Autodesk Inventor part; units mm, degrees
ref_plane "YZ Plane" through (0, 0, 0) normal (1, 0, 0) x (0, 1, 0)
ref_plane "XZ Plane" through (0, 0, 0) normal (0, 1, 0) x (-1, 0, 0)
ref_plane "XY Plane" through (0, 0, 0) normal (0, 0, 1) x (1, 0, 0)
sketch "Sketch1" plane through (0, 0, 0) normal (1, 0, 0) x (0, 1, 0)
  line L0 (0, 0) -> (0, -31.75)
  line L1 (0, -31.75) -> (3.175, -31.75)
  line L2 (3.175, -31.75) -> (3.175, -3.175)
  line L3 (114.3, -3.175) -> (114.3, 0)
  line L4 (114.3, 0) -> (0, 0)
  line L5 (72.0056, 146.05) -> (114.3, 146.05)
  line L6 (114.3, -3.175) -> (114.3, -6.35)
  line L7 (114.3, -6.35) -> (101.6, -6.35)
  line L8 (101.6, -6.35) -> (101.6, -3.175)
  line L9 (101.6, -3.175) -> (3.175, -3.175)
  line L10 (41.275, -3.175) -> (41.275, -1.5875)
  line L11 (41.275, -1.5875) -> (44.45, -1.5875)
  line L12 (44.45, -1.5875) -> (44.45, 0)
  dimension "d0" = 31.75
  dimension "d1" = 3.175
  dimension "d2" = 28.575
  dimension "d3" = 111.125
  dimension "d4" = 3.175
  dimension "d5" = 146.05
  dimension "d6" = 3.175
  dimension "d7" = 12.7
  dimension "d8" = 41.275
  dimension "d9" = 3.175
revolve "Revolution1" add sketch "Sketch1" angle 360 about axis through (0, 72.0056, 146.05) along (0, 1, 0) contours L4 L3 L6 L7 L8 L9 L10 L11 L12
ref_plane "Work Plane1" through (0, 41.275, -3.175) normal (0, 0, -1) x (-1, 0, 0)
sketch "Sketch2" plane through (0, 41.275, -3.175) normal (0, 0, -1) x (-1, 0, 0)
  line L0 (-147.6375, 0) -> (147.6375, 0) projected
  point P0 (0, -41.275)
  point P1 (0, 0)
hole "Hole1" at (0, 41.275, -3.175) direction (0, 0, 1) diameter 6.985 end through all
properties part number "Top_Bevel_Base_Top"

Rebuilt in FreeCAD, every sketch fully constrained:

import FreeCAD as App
import Part
import Sketcher

V = App.Vector
Q = App.Units.Quantity


def add_polygon(sketch, points):
    """Adds a closed chain of lines whose ends are joined by coincident constraints."""
    first, n = sketch.GeometryCount, len(points)
    for a, b in zip(points, points[1:] + points[:1]):
        sketch.addGeometry(Part.LineSegment(App.Vector(*a, 0), App.Vector(*b, 0)), False)
    for i in range(n):
        sketch.addConstraint(Sketcher.Constraint("Coincident", first + i, 2, first + (i + 1) % n, 1))

doc = App.newDocument("Part")
body = doc.addObject("PartDesign::Body", "Body")

sketch1 = doc.addObject("Sketcher::SketchObject", "Sketch")
body.addObject(sketch1)
sketch1.AttachmentSupport = (doc.YZ_Plane, [""])
sketch1.MapMode = "FlatFace"
add_polygon(sketch1, [(114.3, 0), (44.5, 0), (44.5, -1.6), (41.3, -1.6), (41.3, -3.2), (101.6, -3.2), (101.6, -6.3), (114.3, -6.3)])
sketch1.addGeometry(Part.LineSegment(V(41.3, 146.1, 0), V(114.3, 146.1, 0)), True)
sketch1.addConstraint(Sketcher.Constraint("Horizontal", 0))
sketch1.addConstraint(Sketcher.Constraint("Vertical", 1))
sketch1.addConstraint(Sketcher.Constraint("Horizontal", 2))
sketch1.addConstraint(Sketcher.Constraint("Vertical", 3))
sketch1.addConstraint(Sketcher.Constraint("Horizontal", 4))
sketch1.addConstraint(Sketcher.Constraint("Vertical", 5))
sketch1.addConstraint(Sketcher.Constraint("Horizontal", 6))
sketch1.addConstraint(Sketcher.Constraint("Vertical", 7))
sketch1.addConstraint(Sketcher.Constraint("Horizontal", 8))
sketch1.addConstraint(Sketcher.Constraint("PointOnObject", 0, 2, -1))
sketch1.addConstraint(Sketcher.Constraint("Vertical", 3, 2, 8, 1))
sketch1.addConstraint(Sketcher.Constraint("Vertical", 7, 2, 8, 2))
sketch1.addConstraint(Sketcher.Constraint("Equal", 1, 3))
sketch1.addConstraint(Sketcher.Constraint("Equal", 2, 5))
sketch1.addConstraint(Sketcher.Constraint("DistanceX", 6, 1, 6, 2, Q("0.5 in")))
sketch1.addConstraint(Sketcher.Constraint("DistanceX", 2, 2, 2, 1, Q("0.125 in")))
sketch1.addConstraint(Sketcher.Constraint("DistanceY", -1, 1, 8, 1, Q("5.75 in")))
sketch1.addConstraint(Sketcher.Constraint("DistanceX", -1, 1, 2, 2, Q("1.625 in")))
sketch1.addConstraint(Sketcher.Constraint("DistanceY", 3, 2, -1, 1, Q("0.125 in")))
sketch1.addConstraint(Sketcher.Constraint("DistanceX", -1, 1, 4, 2, Q("4 in")))
revolution = doc.addObject("PartDesign::Revolution", "Revolution")
body.addObject(revolution)
revolution.Profile = sketch1
revolution.ReferenceAxis = (sketch1, ["Axis0"])
revolution.Angle = 360

sketch2 = doc.addObject("Sketcher::SketchObject", "Sketch001")
body.addObject(sketch2)
sketch2.AttachmentSupport = (doc.XY_Plane, [""])
sketch2.MapMode = "FlatFace"
sketch2.AttachmentOffset = App.Placement(V(0, 0, -0.125 * 25.4), App.Rotation())
sketch2.addGeometry(Part.Circle(V(0, 41.3, 0), V(0, 0, 1), 3.5), False)
sketch2.addConstraint(Sketcher.Constraint("PointOnObject", 0, 3, -2))
sketch2.addConstraint(Sketcher.Constraint("Diameter", 0, Q("0.275 in")))
sketch2.addConstraint(Sketcher.Constraint("DistanceY", -1, 1, 0, 3, Q("1.625 in")))
doc.recompute()
hole = doc.addObject("PartDesign::Hole", "Hole")
body.addObject(hole)
hole.Profile = sketch2
hole.ThreadType = "None"
hole.Diameter = Q("0.275 in")
hole.DepthType = "ThroughAll"
hole.Reversed = True

doc.recompute()
